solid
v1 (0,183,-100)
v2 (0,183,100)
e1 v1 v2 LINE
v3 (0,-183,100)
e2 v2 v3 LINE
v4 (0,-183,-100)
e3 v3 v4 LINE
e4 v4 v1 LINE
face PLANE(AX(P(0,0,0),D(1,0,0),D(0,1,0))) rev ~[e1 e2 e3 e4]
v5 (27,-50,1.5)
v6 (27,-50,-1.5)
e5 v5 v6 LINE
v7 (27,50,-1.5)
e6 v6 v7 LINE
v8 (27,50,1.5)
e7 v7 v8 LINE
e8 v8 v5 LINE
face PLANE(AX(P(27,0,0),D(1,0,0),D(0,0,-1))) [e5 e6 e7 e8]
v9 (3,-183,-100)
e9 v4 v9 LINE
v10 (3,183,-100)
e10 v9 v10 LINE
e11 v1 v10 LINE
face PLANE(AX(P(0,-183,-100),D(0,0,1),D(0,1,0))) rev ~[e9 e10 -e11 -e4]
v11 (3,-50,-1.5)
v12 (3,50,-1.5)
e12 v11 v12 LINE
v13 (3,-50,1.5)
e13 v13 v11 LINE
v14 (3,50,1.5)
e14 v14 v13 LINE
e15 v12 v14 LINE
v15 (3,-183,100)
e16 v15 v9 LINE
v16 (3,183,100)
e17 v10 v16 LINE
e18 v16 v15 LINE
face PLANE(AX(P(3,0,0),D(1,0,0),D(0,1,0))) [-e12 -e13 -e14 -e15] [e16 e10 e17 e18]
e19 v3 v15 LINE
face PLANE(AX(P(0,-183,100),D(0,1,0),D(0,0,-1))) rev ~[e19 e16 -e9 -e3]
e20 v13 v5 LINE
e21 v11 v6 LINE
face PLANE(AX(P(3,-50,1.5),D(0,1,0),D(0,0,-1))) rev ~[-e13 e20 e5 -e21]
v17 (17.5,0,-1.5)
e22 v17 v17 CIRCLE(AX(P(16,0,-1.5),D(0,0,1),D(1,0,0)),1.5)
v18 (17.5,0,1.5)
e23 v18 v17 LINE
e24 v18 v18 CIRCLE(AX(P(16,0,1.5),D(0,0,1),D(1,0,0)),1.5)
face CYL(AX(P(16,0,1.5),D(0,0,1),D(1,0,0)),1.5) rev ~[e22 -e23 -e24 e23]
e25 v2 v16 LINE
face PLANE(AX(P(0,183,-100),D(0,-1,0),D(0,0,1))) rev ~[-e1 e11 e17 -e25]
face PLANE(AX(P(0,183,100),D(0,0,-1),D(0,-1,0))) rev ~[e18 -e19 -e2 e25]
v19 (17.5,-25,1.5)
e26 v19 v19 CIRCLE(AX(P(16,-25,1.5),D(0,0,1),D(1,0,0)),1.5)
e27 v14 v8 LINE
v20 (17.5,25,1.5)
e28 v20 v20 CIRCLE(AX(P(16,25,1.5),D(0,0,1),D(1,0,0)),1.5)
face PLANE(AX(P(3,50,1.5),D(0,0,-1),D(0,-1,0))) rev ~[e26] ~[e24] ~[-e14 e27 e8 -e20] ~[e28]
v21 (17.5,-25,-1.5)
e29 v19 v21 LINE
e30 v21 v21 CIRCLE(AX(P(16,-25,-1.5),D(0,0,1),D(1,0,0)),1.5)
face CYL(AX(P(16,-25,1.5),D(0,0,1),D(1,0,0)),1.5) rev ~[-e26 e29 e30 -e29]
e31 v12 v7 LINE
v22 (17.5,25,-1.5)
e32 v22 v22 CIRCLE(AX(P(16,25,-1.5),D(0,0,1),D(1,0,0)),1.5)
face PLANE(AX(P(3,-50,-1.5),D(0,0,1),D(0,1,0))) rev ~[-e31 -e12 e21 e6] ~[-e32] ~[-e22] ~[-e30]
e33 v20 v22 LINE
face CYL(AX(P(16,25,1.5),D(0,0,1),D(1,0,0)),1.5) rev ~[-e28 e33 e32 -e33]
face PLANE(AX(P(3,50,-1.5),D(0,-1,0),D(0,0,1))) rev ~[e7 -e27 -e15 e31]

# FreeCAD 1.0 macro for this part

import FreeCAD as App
import Part
import Sketcher
from FreeCAD import Vector

doc = App.newDocument("Part")
body = doc.addObject("PartDesign::Body", "Body")

sketch1 = doc.addObject("Sketcher::SketchObject", "Sketch")
body.addObject(sketch1)
sketch1.AttachmentSupport = (doc.YZ_Plane, [""])
sketch1.MapMode = "FlatFace"
sketch1.addGeometry([
    Part.LineSegment(Vector(183, -100, 0), Vector(183, 100, 0)),
    Part.LineSegment(Vector(183, 100, 0), Vector(-183, 100, 0)),
    Part.LineSegment(Vector(-183, 100, 0), Vector(-183, -100, 0)),
    Part.LineSegment(Vector(-183, -100, 0), Vector(183, -100, 0)),
], False)
sketch1.addConstraint([
    Sketcher.Constraint("Coincident", 0, 2, 1, 1),
    Sketcher.Constraint("Coincident", 1, 2, 2, 1),
    Sketcher.Constraint("Coincident", 2, 2, 3, 1),
    Sketcher.Constraint("Coincident", 3, 2, 0, 1),
    Sketcher.Constraint("Vertical", 0),
    Sketcher.Constraint("Horizontal", 1),
    Sketcher.Constraint("Vertical", 2),
    Sketcher.Constraint("Horizontal", 3),
    Sketcher.Constraint("Symmetric", 0, 2, 2, 2, -1, 1),
    Sketcher.Constraint("DistanceX", 1, 2, 1, 1, 366.0),
    Sketcher.Constraint("DistanceY", 0, 1, 0, 2, 200.0),
])
pad1 = doc.addObject("PartDesign::Pad", "Pad")
body.addObject(pad1)
pad1.Profile = sketch1
pad1.Length = 3

sketch2 = doc.addObject("Sketcher::SketchObject", "Sketch001")
body.addObject(sketch2)
sketch2.AttachmentSupport = (doc.YZ_Plane, [""])
sketch2.MapMode = "FlatFace"
sketch2.AttachmentOffset = App.Placement(Vector(0, 0, 3), App.Rotation())
sketch2.addGeometry([
    Part.LineSegment(Vector(-50, -1.5, 0), Vector(50, -1.5, 0)),
    Part.LineSegment(Vector(50, -1.5, 0), Vector(50, 1.5, 0)),
    Part.LineSegment(Vector(50, 1.5, 0), Vector(-50, 1.5, 0)),
    Part.LineSegment(Vector(-50, 1.5, 0), Vector(-50, -1.5, 0)),
], False)
sketch2.addConstraint([
    Sketcher.Constraint("Coincident", 0, 2, 1, 1),
    Sketcher.Constraint("Coincident", 1, 2, 2, 1),
    Sketcher.Constraint("Coincident", 2, 2, 3, 1),
    Sketcher.Constraint("Coincident", 3, 2, 0, 1),
    Sketcher.Constraint("Horizontal", 0),
    Sketcher.Constraint("Vertical", 1),
    Sketcher.Constraint("Horizontal", 2),
    Sketcher.Constraint("Vertical", 3),
    Sketcher.Constraint("Symmetric", 0, 2, 2, 2, -1, 1),
    Sketcher.Constraint("DistanceX", 0, 1, 0, 2, 100.0),
    Sketcher.Constraint("DistanceY", 1, 1, 1, 2, 3.0),
])
pad2 = doc.addObject("PartDesign::Pad", "Pad001")
body.addObject(pad2)
pad2.Profile = sketch2
pad2.Length = 24

sketch3 = doc.addObject("Sketcher::SketchObject", "Sketch002")
body.addObject(sketch3)
sketch3.AttachmentSupport = (doc.XY_Plane, [""])
sketch3.MapMode = "FlatFace"
sketch3.AttachmentOffset = App.Placement(Vector(0, 0, 1.5), App.Rotation())
sketch3.addGeometry([
    Part.Circle(Vector(16, 25, 0), Vector(0, 0, 1), 1.5),
    Part.Circle(Vector(16, 0, 0), Vector(0, 0, 1), 1.5),
    Part.Circle(Vector(16, -25, 0), Vector(0, 0, 1), 1.5),
], False)
sketch3.addConstraint([
    Sketcher.Constraint("Equal", 0, 1),
    Sketcher.Constraint("Equal", 1, 2),
    Sketcher.Constraint("Symmetric", 0, 3, 2, 3, -1),
    Sketcher.Constraint("PointOnObject", 1, 3, -1),
    Sketcher.Constraint("Vertical", 0, 3, 1, 3),
    Sketcher.Constraint("Diameter", 0, 3.0),
    Sketcher.Constraint("DistanceY", -1, 1, 0, 3, 25.0),
    Sketcher.Constraint("DistanceX", -1, 1, 0, 3, 16.0),
])
pocket1 = doc.addObject("PartDesign::Pocket", "Pocket")
body.addObject(pocket1)
pocket1.Profile = sketch3
pocket1.Length = 25

doc.recompute()
